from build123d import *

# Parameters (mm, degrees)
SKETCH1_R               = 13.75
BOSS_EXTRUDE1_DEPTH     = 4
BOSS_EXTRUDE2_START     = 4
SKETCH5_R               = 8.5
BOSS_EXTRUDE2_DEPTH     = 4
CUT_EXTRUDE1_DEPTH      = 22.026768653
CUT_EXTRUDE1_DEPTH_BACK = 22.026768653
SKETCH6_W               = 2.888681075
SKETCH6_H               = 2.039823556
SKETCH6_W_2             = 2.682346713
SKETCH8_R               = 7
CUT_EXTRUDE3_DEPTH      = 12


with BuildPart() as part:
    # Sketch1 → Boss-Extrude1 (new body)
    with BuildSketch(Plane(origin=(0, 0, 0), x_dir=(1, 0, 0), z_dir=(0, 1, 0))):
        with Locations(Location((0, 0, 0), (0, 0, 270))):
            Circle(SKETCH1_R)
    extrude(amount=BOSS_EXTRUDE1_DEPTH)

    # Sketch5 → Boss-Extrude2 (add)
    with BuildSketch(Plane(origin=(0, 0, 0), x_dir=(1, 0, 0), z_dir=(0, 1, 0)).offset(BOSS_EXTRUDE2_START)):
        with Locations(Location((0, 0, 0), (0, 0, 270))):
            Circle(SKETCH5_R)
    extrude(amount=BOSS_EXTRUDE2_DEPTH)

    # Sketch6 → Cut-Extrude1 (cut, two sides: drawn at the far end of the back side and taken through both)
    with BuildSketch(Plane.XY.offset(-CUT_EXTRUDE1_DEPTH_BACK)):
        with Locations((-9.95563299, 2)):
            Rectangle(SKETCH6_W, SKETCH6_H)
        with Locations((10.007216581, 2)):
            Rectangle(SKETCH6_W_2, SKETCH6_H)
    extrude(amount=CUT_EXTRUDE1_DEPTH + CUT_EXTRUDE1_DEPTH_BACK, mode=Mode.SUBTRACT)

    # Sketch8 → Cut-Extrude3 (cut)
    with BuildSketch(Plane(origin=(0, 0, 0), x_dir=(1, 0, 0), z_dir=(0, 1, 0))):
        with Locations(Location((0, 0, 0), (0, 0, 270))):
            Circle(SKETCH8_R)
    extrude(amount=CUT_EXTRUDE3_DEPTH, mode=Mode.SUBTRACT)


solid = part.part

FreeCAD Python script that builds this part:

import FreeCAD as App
import Part
import Sketcher


def add_polygon(sketch, points):
    """Adds a closed chain of lines whose ends are joined by coincident constraints."""
    first, n = sketch.GeometryCount, len(points)
    for a, b in zip(points, points[1:] + points[:1]):
        sketch.addGeometry(Part.LineSegment(App.Vector(*a, 0), App.Vector(*b, 0)), False)
    for i in range(n):
        sketch.addConstraint(Sketcher.Constraint("Coincident", first + i, 2, first + (i + 1) % n, 1))

doc = App.newDocument("Part")
body = doc.addObject("PartDesign::Body", "Body")

# Sketch on XZ plane
sketch1 = doc.addObject("Sketcher::SketchObject", "Sketch")
body.addObject(sketch1)
sketch1.AttachmentSupport = (doc.XZ_Plane, [""])
sketch1.MapMode = "FlatFace"
sketch1.addGeometry(Part.Circle(App.Vector(0, 0, 0), App.Vector(0, 0, 1), 14), False)
sketch1.addConstraint([
    Sketcher.Constraint("Coincident", 0, 3, -1, 1),
    Sketcher.Constraint("Diameter", 0, 27.5),
])
pad1 = doc.addObject("PartDesign::Pad", "Pad")
body.addObject(pad1)
pad1.Profile = sketch1
pad1.Length = 4
pad1.Reversed = True

# Sketch on XZ plane
sketch2 = doc.addObject("Sketcher::SketchObject", "Sketch001")
body.addObject(sketch2)
sketch2.AttachmentSupport = (doc.XZ_Plane, [""])
sketch2.MapMode = "FlatFace"
sketch2.AttachmentOffset = App.Placement(App.Vector(0, 0, -4), App.Rotation())
sketch2.addGeometry(Part.Circle(App.Vector(0, 0, 0), App.Vector(0, 0, 1), 8), False)
sketch2.addConstraint([
    Sketcher.Constraint("Coincident", 0, 3, -1, 1),
    Sketcher.Constraint("Diameter", 0, 17.0),
])
pad2 = doc.addObject("PartDesign::Pad", "Pad001")
body.addObject(pad2)
pad2.Profile = sketch2
pad2.Length = 4
pad2.Reversed = True

# Sketch on XY plane
sketch3 = doc.addObject("Sketcher::SketchObject", "Sketch002")
body.addObject(sketch3)
sketch3.AttachmentSupport = (doc.XY_Plane, [""])
sketch3.MapMode = "FlatFace"
add_polygon(sketch3, [(-11.4, 3), (-11.4, 1), (-8.5, 1), (-8.5, 3)])  # lines 0-3
add_polygon(sketch3, [(8.7, 3), (8.7, 1), (11.3, 1), (11.3, 3)])  # lines 4-7
sketch3.addConstraint([
    Sketcher.Constraint("Vertical", 0),
    Sketcher.Constraint("Horizontal", 1),
    Sketcher.Constraint("Vertical", 2),
    Sketcher.Constraint("Horizontal", 3),
    Sketcher.Constraint("Vertical", 4),
    Sketcher.Constraint("Horizontal", 5),
    Sketcher.Constraint("Vertical", 6),
    Sketcher.Constraint("Horizontal", 7),
    Sketcher.Constraint("Horizontal", 1, 2, 4, 2),
    Sketcher.Constraint("Horizontal", 3, 2, 6, 2),
    Sketcher.Constraint("DistanceX", 1, 1, 1, 2, 2.888681),
    Sketcher.Constraint("DistanceX", 5, 1, 5, 2, 2.682347),
    Sketcher.Constraint("DistanceY", 0, 2, 0, 1, 2.039824),
    Sketcher.Constraint("DistanceY", -1, 1, 0, 2, 0.980088),
    Sketcher.Constraint("DistanceX", -1, 1, 5, 2, 11.34839),
    Sketcher.Constraint("DistanceX", 0, 2, -1, 1, 11.399974),
])
pocket1 = doc.addObject("PartDesign::Pocket", "Pocket")
body.addObject(pocket1)
pocket1.Profile = sketch3
pocket1.Type = "ThroughAll"
pocket1.Midplane = True

# Sketch on XZ plane
sketch4 = doc.addObject("Sketcher::SketchObject", "Sketch003")
body.addObject(sketch4)
sketch4.AttachmentSupport = (doc.XZ_Plane, [""])
sketch4.MapMode = "FlatFace"
sketch4.addGeometry(Part.Circle(App.Vector(0, 0, 0), App.Vector(0, 0, 1), 7), False)
sketch4.addConstraint([
    Sketcher.Constraint("Coincident", 0, 3, -1, 1),
    Sketcher.Constraint("Diameter", 0, 14.0),
])
pocket2 = doc.addObject("PartDesign::Pocket", "Pocket001")
body.addObject(pocket2)
pocket2.Profile = sketch4
pocket2.Length = 12

doc.recompute()
